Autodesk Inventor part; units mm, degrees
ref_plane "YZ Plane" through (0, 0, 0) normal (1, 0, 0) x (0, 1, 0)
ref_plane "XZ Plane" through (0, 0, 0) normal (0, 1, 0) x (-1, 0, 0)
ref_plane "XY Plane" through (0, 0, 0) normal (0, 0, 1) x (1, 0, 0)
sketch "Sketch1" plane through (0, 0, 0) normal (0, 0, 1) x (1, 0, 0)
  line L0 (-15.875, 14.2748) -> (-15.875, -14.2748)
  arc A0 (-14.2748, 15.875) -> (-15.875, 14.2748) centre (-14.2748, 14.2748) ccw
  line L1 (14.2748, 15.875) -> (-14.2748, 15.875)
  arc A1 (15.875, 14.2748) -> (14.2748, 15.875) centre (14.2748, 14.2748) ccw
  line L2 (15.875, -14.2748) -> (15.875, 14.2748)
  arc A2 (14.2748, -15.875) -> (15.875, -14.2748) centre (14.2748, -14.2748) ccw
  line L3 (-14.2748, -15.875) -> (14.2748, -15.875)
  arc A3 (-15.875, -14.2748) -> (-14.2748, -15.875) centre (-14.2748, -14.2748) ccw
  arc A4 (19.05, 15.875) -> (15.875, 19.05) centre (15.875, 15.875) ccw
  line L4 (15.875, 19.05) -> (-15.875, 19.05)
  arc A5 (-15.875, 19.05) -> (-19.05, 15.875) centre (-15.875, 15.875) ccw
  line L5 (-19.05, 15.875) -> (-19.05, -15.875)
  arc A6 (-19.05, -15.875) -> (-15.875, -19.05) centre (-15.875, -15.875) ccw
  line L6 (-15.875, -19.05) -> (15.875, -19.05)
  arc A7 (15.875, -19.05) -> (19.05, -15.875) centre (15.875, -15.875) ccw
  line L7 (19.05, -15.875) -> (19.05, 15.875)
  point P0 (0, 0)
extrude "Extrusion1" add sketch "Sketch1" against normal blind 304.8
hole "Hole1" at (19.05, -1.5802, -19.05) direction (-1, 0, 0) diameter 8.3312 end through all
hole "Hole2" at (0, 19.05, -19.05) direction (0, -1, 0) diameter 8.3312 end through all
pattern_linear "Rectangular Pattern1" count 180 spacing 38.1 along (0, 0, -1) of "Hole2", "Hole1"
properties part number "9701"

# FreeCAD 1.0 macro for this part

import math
import FreeCAD as App
import Part
import Sketcher

V = App.Vector
Q = App.Units.Quantity

doc = App.newDocument("Part")
params = doc.addObject("Spreadsheet::Sheet", "Params")
for row, (alias, value) in enumerate([
    ("sketch1_radius", "0.125 in"),
    ("sketch1_radius2", "0.063 in"),
    ("sketch1_width", "1.25 in"),
    ("pad1_length", "12 in"),
    ("sketch2_diameter", "0.328 in"),
    ("hole_diameter", "0.328 in"),
    ("sketch3_diameter", "0.328 in"),
    ("hole2_diameter", "0.328 in"),
    ("linearpattern_pitch", "1.5 in"),
], start=1):
    params.set(f"A{row}", alias)
    params.set(f"B{row}", "=" + value)
    params.setAlias(f"B{row}", alias)

body = doc.addObject("PartDesign::Body", "Body")

# Sketch on XY plane
sketch1 = doc.addObject("Sketcher::SketchObject", "Sketch")
body.addObject(sketch1)
sketch1.AttachmentSupport = (doc.XY_Plane, [""])
sketch1.MapMode = "FlatFace"
sketch1.addGeometry(Part.LineSegment(V(19.1, -15.9, 0), V(19.1, 15.9, 0)), False)
sketch1.addGeometry(Part.ArcOfCircle(Part.Circle(V(15.9, 15.9, 0), V(0, 0, 1), 3.2), math.radians(0), math.radians(90)), False)
sketch1.addGeometry(Part.LineSegment(V(15.9, 19.1, 0), V(-15.9, 19.1, 0)), False)
sketch1.addGeometry(Part.ArcOfCircle(Part.Circle(V(-15.9, 15.9, 0), V(0, 0, 1), 3.2), math.radians(90), math.radians(180)), False)
sketch1.addGeometry(Part.LineSegment(V(-19.1, 15.9, 0), V(-19.1, -15.9, 0)), False)
sketch1.addGeometry(Part.ArcOfCircle(Part.Circle(V(-15.9, -15.9, 0), V(0, 0, 1), 3.2), math.radians(180), math.radians(270)), False)
sketch1.addGeometry(Part.LineSegment(V(-15.9, -19.1, 0), V(15.9, -19.1, 0)), False)
sketch1.addGeometry(Part.ArcOfCircle(Part.Circle(V(15.9, -15.9, 0), V(0, 0, 1), 3.2), math.radians(-90), math.radians(0)), False)
sketch1.addGeometry(Part.LineSegment(V(-15.9, -14.3, 0), V(-15.9, 14.3, 0)), False)
sketch1.addGeometry(Part.ArcOfCircle(Part.Circle(V(-14.3, 14.3, 0), V(0, 0, 1), 1.6), math.radians(90), math.radians(180)), False)
sketch1.addGeometry(Part.LineSegment(V(-14.3, 15.9, 0), V(14.3, 15.9, 0)), False)
sketch1.addGeometry(Part.ArcOfCircle(Part.Circle(V(14.3, 14.3, 0), V(0, 0, 1), 1.6), math.radians(0), math.radians(90)), False)
sketch1.addGeometry(Part.LineSegment(V(15.9, 14.3, 0), V(15.9, -14.3, 0)), False)
sketch1.addGeometry(Part.ArcOfCircle(Part.Circle(V(14.3, -14.3, 0), V(0, 0, 1), 1.6), math.radians(-90), math.radians(0)), False)
sketch1.addGeometry(Part.LineSegment(V(14.3, -15.9, 0), V(-14.3, -15.9, 0)), False)
sketch1.addGeometry(Part.ArcOfCircle(Part.Circle(V(-14.3, -14.3, 0), V(0, 0, 1), 1.6), math.radians(180), math.radians(270)), False)
sketch1.addConstraint(Sketcher.Constraint("Tangent", 0, 2, 1, 1))
sketch1.addConstraint(Sketcher.Constraint("Tangent", 1, 2, 2, 1))
sketch1.addConstraint(Sketcher.Constraint("Tangent", 2, 2, 3, 1))
sketch1.addConstraint(Sketcher.Constraint("Tangent", 3, 2, 4, 1))
sketch1.addConstraint(Sketcher.Constraint("Tangent", 4, 2, 5, 1))
sketch1.addConstraint(Sketcher.Constraint("Tangent", 5, 2, 6, 1))
sketch1.addConstraint(Sketcher.Constraint("Tangent", 6, 2, 7, 1))
sketch1.addConstraint(Sketcher.Constraint("Tangent", 7, 2, 0, 1))
sketch1.addConstraint(Sketcher.Constraint("Tangent", 8, 2, 9, 2))
sketch1.addConstraint(Sketcher.Constraint("Tangent", 9, 1, 10, 1))
sketch1.addConstraint(Sketcher.Constraint("Tangent", 10, 2, 11, 2))
sketch1.addConstraint(Sketcher.Constraint("Tangent", 11, 1, 12, 1))
sketch1.addConstraint(Sketcher.Constraint("Tangent", 12, 2, 13, 2))
sketch1.addConstraint(Sketcher.Constraint("Tangent", 13, 1, 14, 1))
sketch1.addConstraint(Sketcher.Constraint("Tangent", 14, 2, 15, 2))
sketch1.addConstraint(Sketcher.Constraint("Tangent", 15, 1, 8, 1))
sketch1.addConstraint(Sketcher.Constraint("Vertical", 0))
sketch1.addConstraint(Sketcher.Constraint("Horizontal", 2))
sketch1.addConstraint(Sketcher.Constraint("Vertical", 4))
sketch1.addConstraint(Sketcher.Constraint("Horizontal", 6))
sketch1.addConstraint(Sketcher.Constraint("Vertical", 8))
sketch1.addConstraint(Sketcher.Constraint("Horizontal", 10))
sketch1.addConstraint(Sketcher.Constraint("Vertical", 12))
sketch1.addConstraint(Sketcher.Constraint("Horizontal", 14))
sketch1.addConstraint(Sketcher.Constraint("Equal", 1, 3))
sketch1.addConstraint(Sketcher.Constraint("Equal", 3, 5))
sketch1.addConstraint(Sketcher.Constraint("Equal", 5, 7))
sketch1.addConstraint(Sketcher.Constraint("Equal", 9, 11))
sketch1.addConstraint(Sketcher.Constraint("Equal", 11, 13))
sketch1.addConstraint(Sketcher.Constraint("Equal", 13, 15))
sketch1.addConstraint(Sketcher.Constraint("Symmetric", 1, 3, 5, 3, -1, 1))
sketch1.addConstraint(Sketcher.Constraint("Symmetric", 9, 3, 13, 3, -1, 1))
sketch1.addConstraint(Sketcher.Constraint("Horizontal", 3, 2, 9, 1))
sketch1.addConstraint(Sketcher.Constraint("Vertical", 5, 2, 8, 2))
sketch1.addConstraint(Sketcher.Constraint("Equal", 6, 0))
sketch1.addConstraint(Sketcher.Constraint("Radius", 1, Q("0.125 in")))
sketch1.addConstraint(Sketcher.Constraint("Radius", 9, Q("0.063 in")))
sketch1.addConstraint(Sketcher.Constraint("DistanceX", 2, 2, 2, 1, Q("1.25 in")))
sketch1.setExpression("Constraints[35]", "Params.sketch1_radius")
sketch1.setExpression("Constraints[36]", "Params.sketch1_radius2")
sketch1.setExpression("Constraints[37]", "Params.sketch1_width")
pad1 = doc.addObject("PartDesign::Pad", "Pad")
body.addObject(pad1)
pad1.Profile = sketch1
pad1.setExpression("Length", "Params.pad1_length")
pad1.Reversed = True

# Sketch on YZ plane
sketch2 = doc.addObject("Sketcher::SketchObject", "Sketch001")
body.addObject(sketch2)
sketch2.AttachmentSupport = (doc.YZ_Plane, [""])
sketch2.MapMode = "FlatFace"
sketch2.AttachmentOffset = App.Placement(V(0, 0, 0.75 * 25.4), App.Rotation())
sketch2.addGeometry(Part.Circle(V(-1.6, -19.1, 0), V(0, 0, 1), 4.2), False)
sketch2.addConstraint(Sketcher.Constraint("Diameter", 0, Q("0.328 in")))
sketch2.addConstraint(Sketcher.Constraint("DistanceY", 0, 3, -1, 1, Q("0.75 in")))
sketch2.addConstraint(Sketcher.Constraint("DistanceX", 0, 3, -1, 1, 1.5802))
sketch2.setExpression("Constraints[0]", "Params.sketch2_diameter")
doc.recompute()
hole = doc.addObject("PartDesign::Hole", "Hole")
body.addObject(hole)
hole.Profile = sketch2
hole.ThreadType = "None"
hole.setExpression("Diameter", "Params.hole_diameter")
hole.DepthType = "ThroughAll"

# Sketch on XZ plane
sketch3 = doc.addObject("Sketcher::SketchObject", "Sketch002")
body.addObject(sketch3)
sketch3.AttachmentSupport = (doc.XZ_Plane, [""])
sketch3.MapMode = "FlatFace"
sketch3.AttachmentOffset = App.Placement(V(0, 0, -0.75 * 25.4), App.Rotation())
sketch3.addGeometry(Part.Circle(V(0, -19.1, 0), V(0, 0, 1), 4.2), False)
sketch3.addConstraint(Sketcher.Constraint("PointOnObject", 0, 3, -2))
sketch3.addConstraint(Sketcher.Constraint("Diameter", 0, Q("0.328 in")))
sketch3.addConstraint(Sketcher.Constraint("DistanceY", 0, 3, -1, 1, Q("0.75 in")))
sketch3.setExpression("Constraints[1]", "Params.sketch3_diameter")
doc.recompute()
hole2 = doc.addObject("PartDesign::Hole", "Hole001")
body.addObject(hole2)
hole2.Profile = sketch3
hole2.ThreadType = "None"
hole2.setExpression("Diameter", "Params.hole2_diameter")
hole2.DepthType = "ThroughAll"
hole2.Reversed = True
doc.recompute()

linearpattern = doc.addObject("PartDesign::LinearPattern", "LinearPattern")
body.addObject(linearpattern)
linearpattern.Originals = [hole2, hole]
linearpattern.Direction = (doc.Z_Axis, [""])
linearpattern.Mode = "offset"
linearpattern.setExpression("Offset", "Params.linearpattern_pitch")
linearpattern.Occurrences = 180
linearpattern.Reversed = True
body.Tip = linearpattern

doc.recompute()
